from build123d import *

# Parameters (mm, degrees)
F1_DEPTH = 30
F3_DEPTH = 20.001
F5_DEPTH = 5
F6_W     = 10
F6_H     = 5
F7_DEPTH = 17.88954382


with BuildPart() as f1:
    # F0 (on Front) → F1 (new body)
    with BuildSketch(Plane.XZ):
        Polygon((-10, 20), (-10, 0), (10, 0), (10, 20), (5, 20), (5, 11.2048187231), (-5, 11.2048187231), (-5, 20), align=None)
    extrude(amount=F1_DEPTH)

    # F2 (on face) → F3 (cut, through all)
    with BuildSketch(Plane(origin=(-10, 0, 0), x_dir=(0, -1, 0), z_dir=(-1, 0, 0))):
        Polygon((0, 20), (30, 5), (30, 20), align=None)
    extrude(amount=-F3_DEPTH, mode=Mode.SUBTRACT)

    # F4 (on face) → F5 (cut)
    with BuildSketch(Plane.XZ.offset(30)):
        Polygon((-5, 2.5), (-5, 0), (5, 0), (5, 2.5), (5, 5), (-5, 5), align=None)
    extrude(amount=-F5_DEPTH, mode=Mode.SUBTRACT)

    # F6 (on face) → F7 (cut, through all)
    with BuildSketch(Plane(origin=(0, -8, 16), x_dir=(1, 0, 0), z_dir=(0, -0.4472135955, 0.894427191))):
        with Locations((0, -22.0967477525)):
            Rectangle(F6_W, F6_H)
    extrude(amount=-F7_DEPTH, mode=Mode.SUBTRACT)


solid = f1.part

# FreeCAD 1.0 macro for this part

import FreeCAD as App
import Part
import Sketcher


def add_polygon(sketch, points):
    """Adds a closed chain of lines whose ends are joined by coincident constraints."""
    first, n = sketch.GeometryCount, len(points)
    for a, b in zip(points, points[1:] + points[:1]):
        sketch.addGeometry(Part.LineSegment(App.Vector(*a, 0), App.Vector(*b, 0)), False)
    for i in range(n):
        sketch.addConstraint(Sketcher.Constraint("Coincident", first + i, 2, first + (i + 1) % n, 1))

doc = App.newDocument("Part")
body = doc.addObject("PartDesign::Body", "Body")

# Sketch on XZ plane
sketch1 = body.newObject("Sketcher::SketchObject", "Sketch")
sketch1.AttachmentSupport = (doc.getObject("XZ_Plane"), [""])
sketch1.MapMode = "FlatFace"
add_polygon(sketch1, [(-10, 20), (-10, 0), (10, 0), (10, 20), (5, 20), (5, 11), (-5, 11), (-5, 20)])  # lines 0-7
sketch1.addConstraint(Sketcher.Constraint("Vertical", 0))
sketch1.addConstraint(Sketcher.Constraint("Horizontal", 1))
sketch1.addConstraint(Sketcher.Constraint("Vertical", 2))
sketch1.addConstraint(Sketcher.Constraint("Horizontal", 3))
sketch1.addConstraint(Sketcher.Constraint("Vertical", 4))
sketch1.addConstraint(Sketcher.Constraint("Horizontal", 5))
sketch1.addConstraint(Sketcher.Constraint("Vertical", 6))
sketch1.addConstraint(Sketcher.Constraint("Horizontal", 7))
sketch1.addConstraint(Sketcher.Constraint("Symmetric", 0, 2, 1, 2, -1, 1))
sketch1.addConstraint(Sketcher.Constraint("Symmetric", 3, 2, 6, 2, -2))
sketch1.addConstraint(Sketcher.Constraint("Equal", 1, 0))
sketch1.addConstraint(Sketcher.Constraint("DistanceX", 1, 1, 1, 2, 20.0))
sketch1.addConstraint(Sketcher.Constraint("DistanceX", 3, 2, 3, 1, 5.0))
sketch1.addConstraint(Sketcher.Constraint("DistanceY", 4, 2, 4, 1, 8.795181))
pad1 = body.newObject("PartDesign::Pad", "Pad")
pad1.Profile = sketch1
pad1.Length = 30

# Sketch on YZ plane
sketch2 = body.newObject("Sketcher::SketchObject", "Sketch001")
sketch2.AttachmentSupport = (doc.getObject("YZ_Plane"), [""])
sketch2.MapMode = "FlatFace"
sketch2.AttachmentOffset = App.Placement(App.Vector(0, 0, -10), App.Rotation())
add_polygon(sketch2, [(0, 20), (-30, 5), (-30, 20)])  # lines 0-2
sketch2.addConstraint(Sketcher.Constraint("Vertical", 1))
sketch2.addConstraint(Sketcher.Constraint("Horizontal", 2))
sketch2.addConstraint(Sketcher.Constraint("PointOnObject", 2, 2, -2))
sketch2.addConstraint(Sketcher.Constraint("DistanceX", 2, 1, 2, 2, 30.0))
sketch2.addConstraint(Sketcher.Constraint("DistanceY", 1, 1, 1, 2, 15.0))
sketch2.addConstraint(Sketcher.Constraint("DistanceY", -1, 1, 0, 2, 5.0))
pocket1 = body.newObject("PartDesign::Pocket", "Pocket")
pocket1.Profile = sketch2
pocket1.Type = "ThroughAll"
pocket1.Reversed = True

# Sketch on XZ plane
sketch3 = body.newObject("Sketcher::SketchObject", "Sketch002")
sketch3.AttachmentSupport = (doc.getObject("XZ_Plane"), [""])
sketch3.MapMode = "FlatFace"
sketch3.AttachmentOffset = App.Placement(App.Vector(0, 0, 30), App.Rotation())
add_polygon(sketch3, [(-5, 0), (5, 0), (5, 5), (-5, 5)])  # lines 0-3
sketch3.addConstraint(Sketcher.Constraint("Horizontal", 0))
sketch3.addConstraint(Sketcher.Constraint("Vertical", 1))
sketch3.addConstraint(Sketcher.Constraint("Horizontal", 2))
sketch3.addConstraint(Sketcher.Constraint("Vertical", 3))
sketch3.addConstraint(Sketcher.Constraint("Symmetric", 0, 2, 3, 2, -1, 1))
sketch3.addConstraint(Sketcher.Constraint("DistanceX", 0, 1, 0, 2, 10.0))
sketch3.addConstraint(Sketcher.Constraint("DistanceY", 1, 1, 1, 2, 5.0))
pocket2 = body.newObject("PartDesign::Pocket", "Pocket001")
pocket2.Profile = sketch3
pocket2.Length = 5

# Sketch on an angled plane
sketch4 = body.newObject("Sketcher::SketchObject", "Sketch003")
sketch4.Placement = App.Placement(App.Vector(0, -8, 16), App.Rotation(App.Vector(1, 0, 0), App.Vector(0, 0.894427191, 0.447213595), App.Vector(0, -0.447213595, 0.894427191), "ZXY"))
add_polygon(sketch4, [(-5, -19.6), (-5, -24.6), (5, -24.6), (5, -19.6)])  # lines 0-3
sketch4.addConstraint(Sketcher.Constraint("Vertical", 0))
sketch4.addConstraint(Sketcher.Constraint("Horizontal", 1))
sketch4.addConstraint(Sketcher.Constraint("Vertical", 2))
sketch4.addConstraint(Sketcher.Constraint("Horizontal", 3))
sketch4.addConstraint(Sketcher.Constraint("DistanceX", 1, 1, 1, 2, 10.0))
sketch4.addConstraint(Sketcher.Constraint("DistanceY", 0, 2, 0, 1, 5.0))
sketch4.addConstraint(Sketcher.Constraint("DistanceX", 0, 2, -1, 1, 5.0))
sketch4.addConstraint(Sketcher.Constraint("DistanceY", 0, 2, -1, 1, 24.596748))
pocket3 = body.newObject("PartDesign::Pocket", "Pocket002")
pocket3.Profile = sketch4
pocket3.Type = "ThroughAll"

doc.recompute()
